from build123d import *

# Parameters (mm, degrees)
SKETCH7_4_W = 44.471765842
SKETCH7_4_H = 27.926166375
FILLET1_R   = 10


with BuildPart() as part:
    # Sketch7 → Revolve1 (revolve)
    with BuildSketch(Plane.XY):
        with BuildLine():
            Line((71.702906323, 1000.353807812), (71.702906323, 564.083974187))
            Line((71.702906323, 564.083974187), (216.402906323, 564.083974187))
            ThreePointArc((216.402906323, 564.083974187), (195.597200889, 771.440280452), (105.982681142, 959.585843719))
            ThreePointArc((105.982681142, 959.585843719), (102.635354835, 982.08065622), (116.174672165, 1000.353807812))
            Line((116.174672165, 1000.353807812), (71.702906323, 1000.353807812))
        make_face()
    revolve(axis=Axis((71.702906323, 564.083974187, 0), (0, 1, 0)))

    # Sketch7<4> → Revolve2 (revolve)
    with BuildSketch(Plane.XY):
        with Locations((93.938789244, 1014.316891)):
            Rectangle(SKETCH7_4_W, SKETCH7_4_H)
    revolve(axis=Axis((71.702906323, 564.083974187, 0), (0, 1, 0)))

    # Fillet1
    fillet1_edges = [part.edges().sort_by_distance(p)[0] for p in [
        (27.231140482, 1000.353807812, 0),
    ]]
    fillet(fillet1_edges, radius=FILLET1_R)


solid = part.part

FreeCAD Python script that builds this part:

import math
import FreeCAD as App
import Part
import Sketcher
from FreeCAD import Vector
Q = App.Units.Quantity


def edges_at(feature, points):
    """Names of the edges that pass closest to the given points."""
    edges = feature.Shape.Edges
    near = lambda p: min(range(len(edges)), key=lambda i: edges[i].distToShape(Part.Vertex(*p))[0])
    return sorted({f"Edge{near(p) + 1}" for p in points})

doc = App.newDocument("Part")
body = doc.addObject("PartDesign::Body", "Body")

# Sketch on XY plane
sketch1 = body.newObject("Sketcher::SketchObject", "Sketch")
sketch1.AttachmentSupport = (doc.getObject("XY_Plane"), [""])
sketch1.MapMode = "FlatFace"
sketch1.addGeometry([
    Part.LineSegment(Vector(72, 1000, 0), Vector(72, 564, 0)),  # 0
    Part.LineSegment(Vector(72, 564, 0), Vector(216, 564, 0)),  # 1
    Part.ArcOfCircle(Part.Circle(Vector(-390, 608, 0), Vector(0, 0, 1), 608), math.radians(-4), math.radians(35)),  # 2
    Part.ArcOfCircle(Part.Circle(Vector(131, 975, 0), Vector(0, 0, 1), 30), math.radians(121), math.radians(211)),  # 3
    Part.LineSegment(Vector(116, 1000, 0), Vector(72, 1000, 0)),  # 4
], False)
sketch1.addGeometry(Part.LineSegment(Vector(72, 564, 0), Vector(72, 1000, 0)), True)  # axis
sketch1.addConstraint([
    Sketcher.Constraint("Coincident", 0, 2, 1, 1),
    Sketcher.Constraint("Coincident", 1, 2, 2, 1),
    Sketcher.Constraint("Coincident", 2, 2, 3, 2),
    Sketcher.Constraint("Coincident", 3, 1, 4, 1),
    Sketcher.Constraint("Coincident", 4, 2, 0, 1),
    Sketcher.Constraint("Vertical", 0),
    Sketcher.Constraint("Horizontal", 1),
    Sketcher.Constraint("Horizontal", 4),
    Sketcher.Constraint("Vertical", 5),
    Sketcher.Constraint("Coincident", 5, 1, 0, 2),
    Sketcher.Constraint("Horizontal", 3, 1, 5, 2),
    Sketcher.Constraint("DistanceX", 1, 1, 1, 2, Q("144.7 mm")),
    Sketcher.Constraint("Radius", 2, Q("607.914041 mm")),
    Sketcher.Constraint("Radius", 3, Q("29.714505 mm")),
    Sketcher.Constraint("DistanceX", 4, 2, 4, 1, Q("44.471766 mm")),
    Sketcher.Constraint("DistanceY", 0, 2, 0, 1, Q("436.269834 mm")),
    Sketcher.Constraint("DistanceX", -1, 1, 3, 3, Q("131.462659 mm")),
    Sketcher.Constraint("DistanceY", -1, 1, 3, 3, Q("974.87383 mm")),
    Sketcher.Constraint("DistanceX", -1, 1, 2, 2, Q("105.982681 mm")),
    Sketcher.Constraint("DistanceX", 2, 3, 3, 3, Q("521.387761 mm")),
])
revolution = body.newObject("PartDesign::Revolution", "Revolution")
revolution.Profile = sketch1
revolution.ReferenceAxis = (sketch1, ["Axis0"])
revolution.Angle = 360

# Sketch on XY plane
sketch2 = body.newObject("Sketcher::SketchObject", "Sketch001")
sketch2.AttachmentSupport = (doc.getObject("XY_Plane"), [""])
sketch2.MapMode = "FlatFace"
sketch2.addGeometry([
    Part.LineSegment(Vector(72, 1028, 0), Vector(72, 1000, 0)),
    Part.LineSegment(Vector(72, 1000, 0), Vector(116, 1000, 0)),
    Part.LineSegment(Vector(116, 1000, 0), Vector(116, 1028, 0)),
    Part.LineSegment(Vector(116, 1028, 0), Vector(72, 1028, 0)),
], False)
sketch2.addGeometry(Part.LineSegment(Vector(72, 1000, 0), Vector(72, 1028, 0)), True)  # axis
sketch2.addConstraint([
    Sketcher.Constraint("Coincident", 0, 2, 1, 1),
    Sketcher.Constraint("Coincident", 1, 2, 2, 1),
    Sketcher.Constraint("Coincident", 2, 2, 3, 1),
    Sketcher.Constraint("Coincident", 3, 2, 0, 1),
    Sketcher.Constraint("Vertical", 0),
    Sketcher.Constraint("Horizontal", 1),
    Sketcher.Constraint("Vertical", 2),
    Sketcher.Constraint("Horizontal", 3),
    Sketcher.Constraint("Vertical", 4),
    Sketcher.Constraint("Coincident", 4, 1, 0, 2),
    Sketcher.Constraint("Horizontal", 2, 2, 4, 2),
    Sketcher.Constraint("DistanceX", 1, 1, 1, 2, Q("44.471766 mm")),
    Sketcher.Constraint("DistanceY", 0, 2, 0, 1, Q("27.926166 mm")),
    Sketcher.Constraint("DistanceX", -1, 1, 0, 2, Q("71.702906 mm")),
    Sketcher.Constraint("DistanceY", -1, 1, 0, 2, Q("1000.353808 mm")),
])
revolution2 = body.newObject("PartDesign::Revolution", "Revolution001")
revolution2.Profile = sketch2
revolution2.ReferenceAxis = (sketch2, ["Axis0"])
revolution2.Angle = 360
doc.recompute()

fillet = body.newObject("PartDesign::Fillet", "Fillet")
fillet.Base = (revolution2, edges_at(revolution2, [(27.231, 1000.354, 0)]))
fillet.Radius = 10

doc.recompute()
